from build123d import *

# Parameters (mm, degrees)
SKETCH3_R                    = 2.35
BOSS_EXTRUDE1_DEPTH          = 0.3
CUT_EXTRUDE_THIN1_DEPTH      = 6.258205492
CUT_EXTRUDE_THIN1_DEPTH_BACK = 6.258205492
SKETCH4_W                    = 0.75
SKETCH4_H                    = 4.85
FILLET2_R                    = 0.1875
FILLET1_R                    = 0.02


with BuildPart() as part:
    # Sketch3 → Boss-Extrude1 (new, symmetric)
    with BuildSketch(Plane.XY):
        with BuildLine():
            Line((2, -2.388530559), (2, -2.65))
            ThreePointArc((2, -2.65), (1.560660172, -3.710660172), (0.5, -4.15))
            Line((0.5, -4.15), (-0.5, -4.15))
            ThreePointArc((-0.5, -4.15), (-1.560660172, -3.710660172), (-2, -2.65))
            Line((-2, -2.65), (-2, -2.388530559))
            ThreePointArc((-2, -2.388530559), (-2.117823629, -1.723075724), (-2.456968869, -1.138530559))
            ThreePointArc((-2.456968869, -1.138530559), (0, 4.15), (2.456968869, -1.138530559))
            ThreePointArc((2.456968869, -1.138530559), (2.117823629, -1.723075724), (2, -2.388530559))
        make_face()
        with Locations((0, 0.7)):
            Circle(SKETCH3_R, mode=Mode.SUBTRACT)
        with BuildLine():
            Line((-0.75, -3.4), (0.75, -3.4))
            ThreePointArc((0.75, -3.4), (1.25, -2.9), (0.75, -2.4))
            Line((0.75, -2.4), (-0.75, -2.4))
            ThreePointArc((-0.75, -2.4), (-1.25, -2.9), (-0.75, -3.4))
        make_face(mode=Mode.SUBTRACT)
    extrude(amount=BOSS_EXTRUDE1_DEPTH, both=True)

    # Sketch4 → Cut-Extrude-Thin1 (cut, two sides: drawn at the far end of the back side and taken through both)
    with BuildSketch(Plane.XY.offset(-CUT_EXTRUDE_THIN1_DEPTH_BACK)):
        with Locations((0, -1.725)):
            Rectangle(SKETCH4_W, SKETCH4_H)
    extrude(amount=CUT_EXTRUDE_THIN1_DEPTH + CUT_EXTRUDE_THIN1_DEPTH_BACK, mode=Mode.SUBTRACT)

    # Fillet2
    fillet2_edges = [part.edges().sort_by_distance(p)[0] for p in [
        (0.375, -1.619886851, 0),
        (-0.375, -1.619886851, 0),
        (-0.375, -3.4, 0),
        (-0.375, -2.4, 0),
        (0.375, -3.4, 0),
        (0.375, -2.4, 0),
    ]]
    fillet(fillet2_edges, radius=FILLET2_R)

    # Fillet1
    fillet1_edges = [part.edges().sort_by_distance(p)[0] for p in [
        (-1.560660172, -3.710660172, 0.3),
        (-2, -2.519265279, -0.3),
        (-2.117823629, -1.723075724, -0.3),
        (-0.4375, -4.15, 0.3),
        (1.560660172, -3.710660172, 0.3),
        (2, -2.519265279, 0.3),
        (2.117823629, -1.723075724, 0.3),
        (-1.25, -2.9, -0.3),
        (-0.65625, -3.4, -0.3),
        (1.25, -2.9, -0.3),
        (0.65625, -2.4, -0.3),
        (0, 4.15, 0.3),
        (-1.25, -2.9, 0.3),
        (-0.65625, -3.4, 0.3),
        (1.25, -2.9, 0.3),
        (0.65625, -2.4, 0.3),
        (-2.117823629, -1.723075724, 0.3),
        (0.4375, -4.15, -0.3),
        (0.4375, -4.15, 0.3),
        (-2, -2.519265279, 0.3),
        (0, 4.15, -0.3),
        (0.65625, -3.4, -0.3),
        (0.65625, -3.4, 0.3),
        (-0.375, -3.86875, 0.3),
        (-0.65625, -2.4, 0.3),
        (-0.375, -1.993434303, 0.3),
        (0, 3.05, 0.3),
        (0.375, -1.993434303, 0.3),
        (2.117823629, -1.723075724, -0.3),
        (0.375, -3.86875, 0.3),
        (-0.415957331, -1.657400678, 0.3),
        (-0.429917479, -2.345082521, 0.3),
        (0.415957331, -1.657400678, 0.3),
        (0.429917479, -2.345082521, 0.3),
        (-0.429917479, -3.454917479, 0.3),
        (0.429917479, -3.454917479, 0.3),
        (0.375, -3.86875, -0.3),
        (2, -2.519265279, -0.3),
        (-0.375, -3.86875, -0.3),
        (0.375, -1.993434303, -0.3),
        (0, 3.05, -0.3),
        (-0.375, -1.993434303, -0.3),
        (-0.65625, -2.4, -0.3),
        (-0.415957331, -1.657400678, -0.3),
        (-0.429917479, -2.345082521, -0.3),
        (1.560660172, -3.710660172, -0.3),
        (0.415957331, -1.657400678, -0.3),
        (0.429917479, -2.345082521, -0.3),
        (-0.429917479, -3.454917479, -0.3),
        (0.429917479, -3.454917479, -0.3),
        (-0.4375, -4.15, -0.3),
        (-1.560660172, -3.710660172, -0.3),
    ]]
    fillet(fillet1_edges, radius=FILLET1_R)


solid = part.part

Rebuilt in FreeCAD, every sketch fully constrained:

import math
import FreeCAD as App
import Part
import Sketcher
from FreeCAD import Vector
Q = App.Units.Quantity


def edges_at(feature, points):
    """Names of the edges that pass closest to the given points."""
    edges = feature.Shape.Edges
    near = lambda p: min(range(len(edges)), key=lambda i: edges[i].distToShape(Part.Vertex(*p))[0])
    return sorted({f"Edge{near(p) + 1}" for p in points})

doc = App.newDocument("Part")
body = doc.addObject("PartDesign::Body", "Body")

sketch1 = body.newObject("Sketcher::SketchObject", "Sketch")
sketch1.AttachmentSupport = (doc.getObject("XY_Plane"), [""])
sketch1.MapMode = "FlatFace"
sketch1.addGeometry(Part.LineSegment(Vector(2, -2.65, 0), Vector(2, -2.388531, 0)), False)
sketch1.addGeometry(Part.ArcOfCircle(Part.Circle(Vector(3.938119, -2.388531, 0), Vector(0, 0, 1), 1.938119), math.radians(139.837693), math.radians(180)), False)
sketch1.addGeometry(Part.ArcOfCircle(Part.Circle(Vector(0, 0.935, 0), Vector(0, 0, 1), 3.215), math.radians(-40.162307), math.radians(220.162307)), False)
sketch1.addGeometry(Part.ArcOfCircle(Part.Circle(Vector(-3.938119, -2.388531, 0), Vector(0, 0, 1), 1.938119), math.radians(0), math.radians(40.162307)), False)
sketch1.addGeometry(Part.LineSegment(Vector(-2, -2.388531, 0), Vector(-2, -2.65, 0)), False)
sketch1.addGeometry(Part.ArcOfCircle(Part.Circle(Vector(-0.5, -2.65, 0), Vector(0, 0, 1), 1.5), math.radians(180), math.radians(270)), False)
sketch1.addGeometry(Part.LineSegment(Vector(-0.5, -4.15, 0), Vector(0.5, -4.15, 0)), False)
sketch1.addGeometry(Part.ArcOfCircle(Part.Circle(Vector(0.5, -2.65, 0), Vector(0, 0, 1), 1.5), math.radians(-90), math.radians(0)), False)
sketch1.addGeometry(Part.ArcOfCircle(Part.Circle(Vector(-0.75, -2.9, 0), Vector(0, 0, 1), 0.5), math.radians(90), math.radians(270)), False)
sketch1.addGeometry(Part.LineSegment(Vector(-0.75, -2.4, 0), Vector(0.75, -2.4, 0)), False)
sketch1.addGeometry(Part.ArcOfCircle(Part.Circle(Vector(0.75, -2.9, 0), Vector(0, 0, 1), 0.5), math.radians(-90), math.radians(90)), False)
sketch1.addGeometry(Part.LineSegment(Vector(0.75, -3.4, 0), Vector(-0.75, -3.4, 0)), False)
sketch1.addGeometry(Part.Circle(Vector(0, 0.7, 0), Vector(0, 0, 1), 2.35), False)
sketch1.addConstraint(Sketcher.Constraint("Tangent", 0, 2, 1, 2))
sketch1.addConstraint(Sketcher.Constraint("Tangent", 1, 1, 2, 1))
sketch1.addConstraint(Sketcher.Constraint("Tangent", 2, 2, 3, 2))
sketch1.addConstraint(Sketcher.Constraint("Tangent", 3, 1, 4, 1))
sketch1.addConstraint(Sketcher.Constraint("Tangent", 4, 2, 5, 1))
sketch1.addConstraint(Sketcher.Constraint("Tangent", 5, 2, 6, 1))
sketch1.addConstraint(Sketcher.Constraint("Tangent", 6, 2, 7, 1))
sketch1.addConstraint(Sketcher.Constraint("Tangent", 7, 2, 0, 1))
sketch1.addConstraint(Sketcher.Constraint("Tangent", 8, 1, 9, 1))
sketch1.addConstraint(Sketcher.Constraint("Tangent", 9, 2, 10, 2))
sketch1.addConstraint(Sketcher.Constraint("Tangent", 10, 1, 11, 1))
sketch1.addConstraint(Sketcher.Constraint("Tangent", 11, 2, 8, 2))
sketch1.addConstraint(Sketcher.Constraint("Vertical", 0))
sketch1.addConstraint(Sketcher.Constraint("Vertical", 4))
sketch1.addConstraint(Sketcher.Constraint("Horizontal", 6))
sketch1.addConstraint(Sketcher.Constraint("Horizontal", 9))
sketch1.addConstraint(Sketcher.Constraint("Horizontal", 11))
sketch1.addConstraint(Sketcher.Constraint("Equal", 1, 3))
sketch1.addConstraint(Sketcher.Constraint("Equal", 5, 7))
sketch1.addConstraint(Sketcher.Constraint("Symmetric", 1, 3, 3, 3, -2))
sketch1.addConstraint(Sketcher.Constraint("PointOnObject", 12, 3, -2))
sketch1.addConstraint(Sketcher.Constraint("Diameter", 12, Q("4.7 mm")))
sketch1.addConstraint(Sketcher.Constraint("Radius", 5, Q("1.5 mm")))
sketch1.addConstraint(Sketcher.Constraint("Radius", 8, Q("0.5 mm")))
sketch1.addConstraint(Sketcher.Constraint("DistanceX", 6, 1, 6, 2, Q("1 mm")))
sketch1.addConstraint(Sketcher.Constraint("DistanceX", 9, 1, 9, 2, Q("1.5 mm")))
sketch1.addConstraint(Sketcher.Constraint("Radius", 2, Q("3.215 mm")))
sketch1.addConstraint(Sketcher.Constraint("DistanceY", 8, 3, -1, 1, Q("2.9 mm")))
sketch1.addConstraint(Sketcher.Constraint("DistanceY", -1, 1, 12, 3, Q("0.7 mm")))
sketch1.addConstraint(Sketcher.Constraint("DistanceY", 5, 3, -1, 1, Q("2.65 mm")))
sketch1.addConstraint(Sketcher.Constraint("DistanceX", 8, 3, -1, 1, Q("0.75 mm")))
sketch1.addConstraint(Sketcher.Constraint("Radius", 1, Q("1.938119 mm")))
sketch1.addConstraint(Sketcher.Constraint("DistanceY", -1, 1, 2, 3, Q("0.935 mm")))
pad1 = body.newObject("PartDesign::Pad", "Pad")
pad1.Profile = sketch1
pad1.Length = 0.6
pad1.Midplane = True

sketch2 = body.newObject("Sketcher::SketchObject", "Sketch001")
sketch2.AttachmentSupport = (doc.getObject("XY_Plane"), [""])
sketch2.MapMode = "FlatFace"
sketch2.addGeometry(Part.LineSegment(Vector(-0.375, 0.7, 0), Vector(-0.375, -4.15, 0)), False)
sketch2.addGeometry(Part.LineSegment(Vector(-0.375, -4.15, 0), Vector(0.375, -4.15, 0)), False)
sketch2.addGeometry(Part.LineSegment(Vector(0.375, -4.15, 0), Vector(0.375, 0.7, 0)), False)
sketch2.addGeometry(Part.LineSegment(Vector(0.375, 0.7, 0), Vector(-0.375, 0.7, 0)), False)
sketch2.addConstraint(Sketcher.Constraint("Coincident", 0, 2, 1, 1))
sketch2.addConstraint(Sketcher.Constraint("Coincident", 1, 2, 2, 1))
sketch2.addConstraint(Sketcher.Constraint("Coincident", 2, 2, 3, 1))
sketch2.addConstraint(Sketcher.Constraint("Coincident", 3, 2, 0, 1))
sketch2.addConstraint(Sketcher.Constraint("Vertical", 0))
sketch2.addConstraint(Sketcher.Constraint("Horizontal", 1))
sketch2.addConstraint(Sketcher.Constraint("Vertical", 2))
sketch2.addConstraint(Sketcher.Constraint("Horizontal", 3))
sketch2.addConstraint(Sketcher.Constraint("DistanceX", 1, 1, 1, 2, Q("0.75 mm")))
sketch2.addConstraint(Sketcher.Constraint("DistanceY", 0, 2, 0, 1, Q("4.85 mm")))
sketch2.addConstraint(Sketcher.Constraint("DistanceY", -1, 1, 2, 2, Q("0.7 mm")))
sketch2.addConstraint(Sketcher.Constraint("DistanceX", 0, 2, -1, 1, Q("0.375 mm")))
pocket1 = body.newObject("PartDesign::Pocket", "Pocket")
pocket1.Profile = sketch2
pocket1.Type = "ThroughAll"
pocket1.Midplane = True
doc.recompute()

fillet = body.newObject("PartDesign::Fillet", "Fillet")
fillet.Base = (pocket1, edges_at(pocket1, [
    (0.375, -1.62, 0),
    (-0.375, -1.62, 0),
    (-0.375, -3.4, 0),
    (-0.375, -2.4, 0),
    (0.375, -3.4, 0),
    (0.375, -2.4, 0),
]))
fillet.Radius = 0.1875
doc.recompute()

fillet2 = body.newObject("PartDesign::Fillet", "Fillet001")
fillet2.Base = (fillet, edges_at(fillet, [
    (-1.561, -3.711, 0.3),
    (-2, -2.519, -0.3),
    (-2.118, -1.723, -0.3),
    (-0.438, -4.15, 0.3),
    (1.561, -3.711, 0.3),
    (2, -2.519, 0.3),
    (2.118, -1.723, 0.3),
    (-1.25, -2.9, -0.3),
    (-0.656, -3.4, -0.3),
    (1.25, -2.9, -0.3),
    (0.656, -2.4, -0.3),
    (0, 4.15, 0.3),
    (-1.25, -2.9, 0.3),
    (-0.656, -3.4, 0.3),
    (1.25, -2.9, 0.3),
    (0.656, -2.4, 0.3),
    (-2.118, -1.723, 0.3),
    (0.438, -4.15, -0.3),
    (0.438, -4.15, 0.3),
    (-2, -2.519, 0.3),
    (0, 4.15, -0.3),
    (0.656, -3.4, -0.3),
    (0.656, -3.4, 0.3),
    (-0.375, -3.869, 0.3),
    (-0.656, -2.4, 0.3),
    (-0.375, -1.993, 0.3),
    (0, 3.05, 0.3),
    (0.375, -1.993, 0.3),
    (2.118, -1.723, -0.3),
    (0.375, -3.869, 0.3),
    (-0.416, -1.657, 0.3),
    (-0.43, -2.345, 0.3),
    (0.416, -1.657, 0.3),
    (0.43, -2.345, 0.3),
    (-0.43, -3.455, 0.3),
    (0.43, -3.455, 0.3),
    (0.375, -3.869, -0.3),
    (2, -2.519, -0.3),
    (-0.375, -3.869, -0.3),
    (0.375, -1.993, -0.3),
    (0, 3.05, -0.3),
    (-0.375, -1.993, -0.3),
    (-0.656, -2.4, -0.3),
    (-0.416, -1.657, -0.3),
    (-0.43, -2.345, -0.3),
    (1.561, -3.711, -0.3),
    (0.416, -1.657, -0.3),
    (0.43, -2.345, -0.3),
    (-0.43, -3.455, -0.3),
    (0.43, -3.455, -0.3),
    (-0.438, -4.15, -0.3),
    (-1.561, -3.711, -0.3),
]))
fillet2.Radius = 0.02

doc.recompute()
